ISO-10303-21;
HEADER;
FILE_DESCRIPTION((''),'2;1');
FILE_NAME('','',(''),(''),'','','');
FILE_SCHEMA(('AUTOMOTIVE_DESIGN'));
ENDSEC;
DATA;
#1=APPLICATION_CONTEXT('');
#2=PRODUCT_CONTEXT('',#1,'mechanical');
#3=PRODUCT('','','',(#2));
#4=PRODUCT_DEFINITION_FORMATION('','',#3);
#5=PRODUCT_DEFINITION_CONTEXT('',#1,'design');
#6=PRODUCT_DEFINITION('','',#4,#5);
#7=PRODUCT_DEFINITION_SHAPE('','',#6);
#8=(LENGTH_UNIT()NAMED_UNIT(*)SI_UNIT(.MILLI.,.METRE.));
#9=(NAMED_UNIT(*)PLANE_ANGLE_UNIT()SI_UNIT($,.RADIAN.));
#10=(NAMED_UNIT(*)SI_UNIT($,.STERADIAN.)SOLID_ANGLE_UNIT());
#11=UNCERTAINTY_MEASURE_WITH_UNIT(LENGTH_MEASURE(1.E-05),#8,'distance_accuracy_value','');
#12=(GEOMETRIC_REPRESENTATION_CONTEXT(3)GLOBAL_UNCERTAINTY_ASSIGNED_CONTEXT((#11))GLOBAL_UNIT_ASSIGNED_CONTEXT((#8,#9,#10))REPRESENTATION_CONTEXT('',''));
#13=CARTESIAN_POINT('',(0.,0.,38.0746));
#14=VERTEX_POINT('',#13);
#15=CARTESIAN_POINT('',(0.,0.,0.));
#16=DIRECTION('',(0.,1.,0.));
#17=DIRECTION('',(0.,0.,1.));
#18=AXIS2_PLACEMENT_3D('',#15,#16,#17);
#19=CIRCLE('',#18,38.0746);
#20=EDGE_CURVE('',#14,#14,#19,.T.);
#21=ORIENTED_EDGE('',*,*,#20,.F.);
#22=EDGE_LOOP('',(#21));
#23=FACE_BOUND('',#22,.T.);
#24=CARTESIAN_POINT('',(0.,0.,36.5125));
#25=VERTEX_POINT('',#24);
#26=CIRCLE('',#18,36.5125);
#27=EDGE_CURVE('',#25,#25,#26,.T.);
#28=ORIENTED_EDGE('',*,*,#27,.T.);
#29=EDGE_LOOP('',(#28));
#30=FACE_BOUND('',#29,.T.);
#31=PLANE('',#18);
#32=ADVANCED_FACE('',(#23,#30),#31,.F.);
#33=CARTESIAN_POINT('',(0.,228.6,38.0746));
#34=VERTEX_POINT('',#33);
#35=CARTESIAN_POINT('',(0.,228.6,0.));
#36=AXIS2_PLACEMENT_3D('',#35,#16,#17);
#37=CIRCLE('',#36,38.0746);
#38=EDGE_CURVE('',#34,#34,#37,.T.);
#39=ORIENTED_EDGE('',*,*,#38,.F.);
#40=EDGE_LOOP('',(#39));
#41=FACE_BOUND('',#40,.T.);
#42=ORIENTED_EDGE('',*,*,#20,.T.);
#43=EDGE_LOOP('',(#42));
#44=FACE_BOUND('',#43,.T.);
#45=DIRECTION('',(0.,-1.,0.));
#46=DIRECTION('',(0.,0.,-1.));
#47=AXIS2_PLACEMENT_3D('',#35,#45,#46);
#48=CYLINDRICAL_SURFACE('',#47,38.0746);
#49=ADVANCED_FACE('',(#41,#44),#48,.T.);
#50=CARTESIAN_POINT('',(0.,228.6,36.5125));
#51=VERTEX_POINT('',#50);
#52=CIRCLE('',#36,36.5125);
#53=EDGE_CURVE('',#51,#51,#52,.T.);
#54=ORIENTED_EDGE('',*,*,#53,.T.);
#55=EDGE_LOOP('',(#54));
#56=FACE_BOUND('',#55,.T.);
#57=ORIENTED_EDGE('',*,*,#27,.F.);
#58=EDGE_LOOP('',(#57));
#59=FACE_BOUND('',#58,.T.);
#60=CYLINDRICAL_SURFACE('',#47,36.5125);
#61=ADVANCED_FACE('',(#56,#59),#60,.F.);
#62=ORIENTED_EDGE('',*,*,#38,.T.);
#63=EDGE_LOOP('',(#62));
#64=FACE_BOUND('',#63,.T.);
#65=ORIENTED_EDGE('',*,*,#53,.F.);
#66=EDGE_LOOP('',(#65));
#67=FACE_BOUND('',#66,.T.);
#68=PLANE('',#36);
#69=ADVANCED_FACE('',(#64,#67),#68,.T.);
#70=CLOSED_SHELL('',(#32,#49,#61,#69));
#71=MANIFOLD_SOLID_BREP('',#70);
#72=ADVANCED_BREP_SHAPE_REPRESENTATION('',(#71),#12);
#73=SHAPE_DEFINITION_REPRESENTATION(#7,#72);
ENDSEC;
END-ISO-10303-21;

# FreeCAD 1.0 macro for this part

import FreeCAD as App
import Part
import Sketcher

V = App.Vector
Q = App.Units.Quantity

doc = App.newDocument("Part")
body = doc.addObject("PartDesign::Body", "Body")

sketch1 = body.newObject("Sketcher::SketchObject", "Sketch")
sketch1.AttachmentSupport = (doc.getObject("XZ_Plane"), [""])
sketch1.MapMode = "FlatFace"
sketch1.addGeometry(Part.Circle(V(0, 0, 0), V(0, 0, 1), 38), False)
sketch1.addGeometry(Part.Circle(V(0, 0, 0), V(0, 0, 1), 37), False)
sketch1.addConstraint(Sketcher.Constraint("Coincident", 0, 3, -1, 1))
sketch1.addConstraint(Sketcher.Constraint("Coincident", 1, 3, -1, 1))
sketch1.addConstraint(Sketcher.Constraint("Diameter", 0, Q("2.998 in")))
sketch1.addConstraint(Sketcher.Constraint("Diameter", 1, Q("2.875 in")))
pad1 = body.newObject("PartDesign::Pad", "Pad")
pad1.Profile = sketch1
pad1.Length = Q("9 in")
pad1.Reversed = True

doc.recompute()
